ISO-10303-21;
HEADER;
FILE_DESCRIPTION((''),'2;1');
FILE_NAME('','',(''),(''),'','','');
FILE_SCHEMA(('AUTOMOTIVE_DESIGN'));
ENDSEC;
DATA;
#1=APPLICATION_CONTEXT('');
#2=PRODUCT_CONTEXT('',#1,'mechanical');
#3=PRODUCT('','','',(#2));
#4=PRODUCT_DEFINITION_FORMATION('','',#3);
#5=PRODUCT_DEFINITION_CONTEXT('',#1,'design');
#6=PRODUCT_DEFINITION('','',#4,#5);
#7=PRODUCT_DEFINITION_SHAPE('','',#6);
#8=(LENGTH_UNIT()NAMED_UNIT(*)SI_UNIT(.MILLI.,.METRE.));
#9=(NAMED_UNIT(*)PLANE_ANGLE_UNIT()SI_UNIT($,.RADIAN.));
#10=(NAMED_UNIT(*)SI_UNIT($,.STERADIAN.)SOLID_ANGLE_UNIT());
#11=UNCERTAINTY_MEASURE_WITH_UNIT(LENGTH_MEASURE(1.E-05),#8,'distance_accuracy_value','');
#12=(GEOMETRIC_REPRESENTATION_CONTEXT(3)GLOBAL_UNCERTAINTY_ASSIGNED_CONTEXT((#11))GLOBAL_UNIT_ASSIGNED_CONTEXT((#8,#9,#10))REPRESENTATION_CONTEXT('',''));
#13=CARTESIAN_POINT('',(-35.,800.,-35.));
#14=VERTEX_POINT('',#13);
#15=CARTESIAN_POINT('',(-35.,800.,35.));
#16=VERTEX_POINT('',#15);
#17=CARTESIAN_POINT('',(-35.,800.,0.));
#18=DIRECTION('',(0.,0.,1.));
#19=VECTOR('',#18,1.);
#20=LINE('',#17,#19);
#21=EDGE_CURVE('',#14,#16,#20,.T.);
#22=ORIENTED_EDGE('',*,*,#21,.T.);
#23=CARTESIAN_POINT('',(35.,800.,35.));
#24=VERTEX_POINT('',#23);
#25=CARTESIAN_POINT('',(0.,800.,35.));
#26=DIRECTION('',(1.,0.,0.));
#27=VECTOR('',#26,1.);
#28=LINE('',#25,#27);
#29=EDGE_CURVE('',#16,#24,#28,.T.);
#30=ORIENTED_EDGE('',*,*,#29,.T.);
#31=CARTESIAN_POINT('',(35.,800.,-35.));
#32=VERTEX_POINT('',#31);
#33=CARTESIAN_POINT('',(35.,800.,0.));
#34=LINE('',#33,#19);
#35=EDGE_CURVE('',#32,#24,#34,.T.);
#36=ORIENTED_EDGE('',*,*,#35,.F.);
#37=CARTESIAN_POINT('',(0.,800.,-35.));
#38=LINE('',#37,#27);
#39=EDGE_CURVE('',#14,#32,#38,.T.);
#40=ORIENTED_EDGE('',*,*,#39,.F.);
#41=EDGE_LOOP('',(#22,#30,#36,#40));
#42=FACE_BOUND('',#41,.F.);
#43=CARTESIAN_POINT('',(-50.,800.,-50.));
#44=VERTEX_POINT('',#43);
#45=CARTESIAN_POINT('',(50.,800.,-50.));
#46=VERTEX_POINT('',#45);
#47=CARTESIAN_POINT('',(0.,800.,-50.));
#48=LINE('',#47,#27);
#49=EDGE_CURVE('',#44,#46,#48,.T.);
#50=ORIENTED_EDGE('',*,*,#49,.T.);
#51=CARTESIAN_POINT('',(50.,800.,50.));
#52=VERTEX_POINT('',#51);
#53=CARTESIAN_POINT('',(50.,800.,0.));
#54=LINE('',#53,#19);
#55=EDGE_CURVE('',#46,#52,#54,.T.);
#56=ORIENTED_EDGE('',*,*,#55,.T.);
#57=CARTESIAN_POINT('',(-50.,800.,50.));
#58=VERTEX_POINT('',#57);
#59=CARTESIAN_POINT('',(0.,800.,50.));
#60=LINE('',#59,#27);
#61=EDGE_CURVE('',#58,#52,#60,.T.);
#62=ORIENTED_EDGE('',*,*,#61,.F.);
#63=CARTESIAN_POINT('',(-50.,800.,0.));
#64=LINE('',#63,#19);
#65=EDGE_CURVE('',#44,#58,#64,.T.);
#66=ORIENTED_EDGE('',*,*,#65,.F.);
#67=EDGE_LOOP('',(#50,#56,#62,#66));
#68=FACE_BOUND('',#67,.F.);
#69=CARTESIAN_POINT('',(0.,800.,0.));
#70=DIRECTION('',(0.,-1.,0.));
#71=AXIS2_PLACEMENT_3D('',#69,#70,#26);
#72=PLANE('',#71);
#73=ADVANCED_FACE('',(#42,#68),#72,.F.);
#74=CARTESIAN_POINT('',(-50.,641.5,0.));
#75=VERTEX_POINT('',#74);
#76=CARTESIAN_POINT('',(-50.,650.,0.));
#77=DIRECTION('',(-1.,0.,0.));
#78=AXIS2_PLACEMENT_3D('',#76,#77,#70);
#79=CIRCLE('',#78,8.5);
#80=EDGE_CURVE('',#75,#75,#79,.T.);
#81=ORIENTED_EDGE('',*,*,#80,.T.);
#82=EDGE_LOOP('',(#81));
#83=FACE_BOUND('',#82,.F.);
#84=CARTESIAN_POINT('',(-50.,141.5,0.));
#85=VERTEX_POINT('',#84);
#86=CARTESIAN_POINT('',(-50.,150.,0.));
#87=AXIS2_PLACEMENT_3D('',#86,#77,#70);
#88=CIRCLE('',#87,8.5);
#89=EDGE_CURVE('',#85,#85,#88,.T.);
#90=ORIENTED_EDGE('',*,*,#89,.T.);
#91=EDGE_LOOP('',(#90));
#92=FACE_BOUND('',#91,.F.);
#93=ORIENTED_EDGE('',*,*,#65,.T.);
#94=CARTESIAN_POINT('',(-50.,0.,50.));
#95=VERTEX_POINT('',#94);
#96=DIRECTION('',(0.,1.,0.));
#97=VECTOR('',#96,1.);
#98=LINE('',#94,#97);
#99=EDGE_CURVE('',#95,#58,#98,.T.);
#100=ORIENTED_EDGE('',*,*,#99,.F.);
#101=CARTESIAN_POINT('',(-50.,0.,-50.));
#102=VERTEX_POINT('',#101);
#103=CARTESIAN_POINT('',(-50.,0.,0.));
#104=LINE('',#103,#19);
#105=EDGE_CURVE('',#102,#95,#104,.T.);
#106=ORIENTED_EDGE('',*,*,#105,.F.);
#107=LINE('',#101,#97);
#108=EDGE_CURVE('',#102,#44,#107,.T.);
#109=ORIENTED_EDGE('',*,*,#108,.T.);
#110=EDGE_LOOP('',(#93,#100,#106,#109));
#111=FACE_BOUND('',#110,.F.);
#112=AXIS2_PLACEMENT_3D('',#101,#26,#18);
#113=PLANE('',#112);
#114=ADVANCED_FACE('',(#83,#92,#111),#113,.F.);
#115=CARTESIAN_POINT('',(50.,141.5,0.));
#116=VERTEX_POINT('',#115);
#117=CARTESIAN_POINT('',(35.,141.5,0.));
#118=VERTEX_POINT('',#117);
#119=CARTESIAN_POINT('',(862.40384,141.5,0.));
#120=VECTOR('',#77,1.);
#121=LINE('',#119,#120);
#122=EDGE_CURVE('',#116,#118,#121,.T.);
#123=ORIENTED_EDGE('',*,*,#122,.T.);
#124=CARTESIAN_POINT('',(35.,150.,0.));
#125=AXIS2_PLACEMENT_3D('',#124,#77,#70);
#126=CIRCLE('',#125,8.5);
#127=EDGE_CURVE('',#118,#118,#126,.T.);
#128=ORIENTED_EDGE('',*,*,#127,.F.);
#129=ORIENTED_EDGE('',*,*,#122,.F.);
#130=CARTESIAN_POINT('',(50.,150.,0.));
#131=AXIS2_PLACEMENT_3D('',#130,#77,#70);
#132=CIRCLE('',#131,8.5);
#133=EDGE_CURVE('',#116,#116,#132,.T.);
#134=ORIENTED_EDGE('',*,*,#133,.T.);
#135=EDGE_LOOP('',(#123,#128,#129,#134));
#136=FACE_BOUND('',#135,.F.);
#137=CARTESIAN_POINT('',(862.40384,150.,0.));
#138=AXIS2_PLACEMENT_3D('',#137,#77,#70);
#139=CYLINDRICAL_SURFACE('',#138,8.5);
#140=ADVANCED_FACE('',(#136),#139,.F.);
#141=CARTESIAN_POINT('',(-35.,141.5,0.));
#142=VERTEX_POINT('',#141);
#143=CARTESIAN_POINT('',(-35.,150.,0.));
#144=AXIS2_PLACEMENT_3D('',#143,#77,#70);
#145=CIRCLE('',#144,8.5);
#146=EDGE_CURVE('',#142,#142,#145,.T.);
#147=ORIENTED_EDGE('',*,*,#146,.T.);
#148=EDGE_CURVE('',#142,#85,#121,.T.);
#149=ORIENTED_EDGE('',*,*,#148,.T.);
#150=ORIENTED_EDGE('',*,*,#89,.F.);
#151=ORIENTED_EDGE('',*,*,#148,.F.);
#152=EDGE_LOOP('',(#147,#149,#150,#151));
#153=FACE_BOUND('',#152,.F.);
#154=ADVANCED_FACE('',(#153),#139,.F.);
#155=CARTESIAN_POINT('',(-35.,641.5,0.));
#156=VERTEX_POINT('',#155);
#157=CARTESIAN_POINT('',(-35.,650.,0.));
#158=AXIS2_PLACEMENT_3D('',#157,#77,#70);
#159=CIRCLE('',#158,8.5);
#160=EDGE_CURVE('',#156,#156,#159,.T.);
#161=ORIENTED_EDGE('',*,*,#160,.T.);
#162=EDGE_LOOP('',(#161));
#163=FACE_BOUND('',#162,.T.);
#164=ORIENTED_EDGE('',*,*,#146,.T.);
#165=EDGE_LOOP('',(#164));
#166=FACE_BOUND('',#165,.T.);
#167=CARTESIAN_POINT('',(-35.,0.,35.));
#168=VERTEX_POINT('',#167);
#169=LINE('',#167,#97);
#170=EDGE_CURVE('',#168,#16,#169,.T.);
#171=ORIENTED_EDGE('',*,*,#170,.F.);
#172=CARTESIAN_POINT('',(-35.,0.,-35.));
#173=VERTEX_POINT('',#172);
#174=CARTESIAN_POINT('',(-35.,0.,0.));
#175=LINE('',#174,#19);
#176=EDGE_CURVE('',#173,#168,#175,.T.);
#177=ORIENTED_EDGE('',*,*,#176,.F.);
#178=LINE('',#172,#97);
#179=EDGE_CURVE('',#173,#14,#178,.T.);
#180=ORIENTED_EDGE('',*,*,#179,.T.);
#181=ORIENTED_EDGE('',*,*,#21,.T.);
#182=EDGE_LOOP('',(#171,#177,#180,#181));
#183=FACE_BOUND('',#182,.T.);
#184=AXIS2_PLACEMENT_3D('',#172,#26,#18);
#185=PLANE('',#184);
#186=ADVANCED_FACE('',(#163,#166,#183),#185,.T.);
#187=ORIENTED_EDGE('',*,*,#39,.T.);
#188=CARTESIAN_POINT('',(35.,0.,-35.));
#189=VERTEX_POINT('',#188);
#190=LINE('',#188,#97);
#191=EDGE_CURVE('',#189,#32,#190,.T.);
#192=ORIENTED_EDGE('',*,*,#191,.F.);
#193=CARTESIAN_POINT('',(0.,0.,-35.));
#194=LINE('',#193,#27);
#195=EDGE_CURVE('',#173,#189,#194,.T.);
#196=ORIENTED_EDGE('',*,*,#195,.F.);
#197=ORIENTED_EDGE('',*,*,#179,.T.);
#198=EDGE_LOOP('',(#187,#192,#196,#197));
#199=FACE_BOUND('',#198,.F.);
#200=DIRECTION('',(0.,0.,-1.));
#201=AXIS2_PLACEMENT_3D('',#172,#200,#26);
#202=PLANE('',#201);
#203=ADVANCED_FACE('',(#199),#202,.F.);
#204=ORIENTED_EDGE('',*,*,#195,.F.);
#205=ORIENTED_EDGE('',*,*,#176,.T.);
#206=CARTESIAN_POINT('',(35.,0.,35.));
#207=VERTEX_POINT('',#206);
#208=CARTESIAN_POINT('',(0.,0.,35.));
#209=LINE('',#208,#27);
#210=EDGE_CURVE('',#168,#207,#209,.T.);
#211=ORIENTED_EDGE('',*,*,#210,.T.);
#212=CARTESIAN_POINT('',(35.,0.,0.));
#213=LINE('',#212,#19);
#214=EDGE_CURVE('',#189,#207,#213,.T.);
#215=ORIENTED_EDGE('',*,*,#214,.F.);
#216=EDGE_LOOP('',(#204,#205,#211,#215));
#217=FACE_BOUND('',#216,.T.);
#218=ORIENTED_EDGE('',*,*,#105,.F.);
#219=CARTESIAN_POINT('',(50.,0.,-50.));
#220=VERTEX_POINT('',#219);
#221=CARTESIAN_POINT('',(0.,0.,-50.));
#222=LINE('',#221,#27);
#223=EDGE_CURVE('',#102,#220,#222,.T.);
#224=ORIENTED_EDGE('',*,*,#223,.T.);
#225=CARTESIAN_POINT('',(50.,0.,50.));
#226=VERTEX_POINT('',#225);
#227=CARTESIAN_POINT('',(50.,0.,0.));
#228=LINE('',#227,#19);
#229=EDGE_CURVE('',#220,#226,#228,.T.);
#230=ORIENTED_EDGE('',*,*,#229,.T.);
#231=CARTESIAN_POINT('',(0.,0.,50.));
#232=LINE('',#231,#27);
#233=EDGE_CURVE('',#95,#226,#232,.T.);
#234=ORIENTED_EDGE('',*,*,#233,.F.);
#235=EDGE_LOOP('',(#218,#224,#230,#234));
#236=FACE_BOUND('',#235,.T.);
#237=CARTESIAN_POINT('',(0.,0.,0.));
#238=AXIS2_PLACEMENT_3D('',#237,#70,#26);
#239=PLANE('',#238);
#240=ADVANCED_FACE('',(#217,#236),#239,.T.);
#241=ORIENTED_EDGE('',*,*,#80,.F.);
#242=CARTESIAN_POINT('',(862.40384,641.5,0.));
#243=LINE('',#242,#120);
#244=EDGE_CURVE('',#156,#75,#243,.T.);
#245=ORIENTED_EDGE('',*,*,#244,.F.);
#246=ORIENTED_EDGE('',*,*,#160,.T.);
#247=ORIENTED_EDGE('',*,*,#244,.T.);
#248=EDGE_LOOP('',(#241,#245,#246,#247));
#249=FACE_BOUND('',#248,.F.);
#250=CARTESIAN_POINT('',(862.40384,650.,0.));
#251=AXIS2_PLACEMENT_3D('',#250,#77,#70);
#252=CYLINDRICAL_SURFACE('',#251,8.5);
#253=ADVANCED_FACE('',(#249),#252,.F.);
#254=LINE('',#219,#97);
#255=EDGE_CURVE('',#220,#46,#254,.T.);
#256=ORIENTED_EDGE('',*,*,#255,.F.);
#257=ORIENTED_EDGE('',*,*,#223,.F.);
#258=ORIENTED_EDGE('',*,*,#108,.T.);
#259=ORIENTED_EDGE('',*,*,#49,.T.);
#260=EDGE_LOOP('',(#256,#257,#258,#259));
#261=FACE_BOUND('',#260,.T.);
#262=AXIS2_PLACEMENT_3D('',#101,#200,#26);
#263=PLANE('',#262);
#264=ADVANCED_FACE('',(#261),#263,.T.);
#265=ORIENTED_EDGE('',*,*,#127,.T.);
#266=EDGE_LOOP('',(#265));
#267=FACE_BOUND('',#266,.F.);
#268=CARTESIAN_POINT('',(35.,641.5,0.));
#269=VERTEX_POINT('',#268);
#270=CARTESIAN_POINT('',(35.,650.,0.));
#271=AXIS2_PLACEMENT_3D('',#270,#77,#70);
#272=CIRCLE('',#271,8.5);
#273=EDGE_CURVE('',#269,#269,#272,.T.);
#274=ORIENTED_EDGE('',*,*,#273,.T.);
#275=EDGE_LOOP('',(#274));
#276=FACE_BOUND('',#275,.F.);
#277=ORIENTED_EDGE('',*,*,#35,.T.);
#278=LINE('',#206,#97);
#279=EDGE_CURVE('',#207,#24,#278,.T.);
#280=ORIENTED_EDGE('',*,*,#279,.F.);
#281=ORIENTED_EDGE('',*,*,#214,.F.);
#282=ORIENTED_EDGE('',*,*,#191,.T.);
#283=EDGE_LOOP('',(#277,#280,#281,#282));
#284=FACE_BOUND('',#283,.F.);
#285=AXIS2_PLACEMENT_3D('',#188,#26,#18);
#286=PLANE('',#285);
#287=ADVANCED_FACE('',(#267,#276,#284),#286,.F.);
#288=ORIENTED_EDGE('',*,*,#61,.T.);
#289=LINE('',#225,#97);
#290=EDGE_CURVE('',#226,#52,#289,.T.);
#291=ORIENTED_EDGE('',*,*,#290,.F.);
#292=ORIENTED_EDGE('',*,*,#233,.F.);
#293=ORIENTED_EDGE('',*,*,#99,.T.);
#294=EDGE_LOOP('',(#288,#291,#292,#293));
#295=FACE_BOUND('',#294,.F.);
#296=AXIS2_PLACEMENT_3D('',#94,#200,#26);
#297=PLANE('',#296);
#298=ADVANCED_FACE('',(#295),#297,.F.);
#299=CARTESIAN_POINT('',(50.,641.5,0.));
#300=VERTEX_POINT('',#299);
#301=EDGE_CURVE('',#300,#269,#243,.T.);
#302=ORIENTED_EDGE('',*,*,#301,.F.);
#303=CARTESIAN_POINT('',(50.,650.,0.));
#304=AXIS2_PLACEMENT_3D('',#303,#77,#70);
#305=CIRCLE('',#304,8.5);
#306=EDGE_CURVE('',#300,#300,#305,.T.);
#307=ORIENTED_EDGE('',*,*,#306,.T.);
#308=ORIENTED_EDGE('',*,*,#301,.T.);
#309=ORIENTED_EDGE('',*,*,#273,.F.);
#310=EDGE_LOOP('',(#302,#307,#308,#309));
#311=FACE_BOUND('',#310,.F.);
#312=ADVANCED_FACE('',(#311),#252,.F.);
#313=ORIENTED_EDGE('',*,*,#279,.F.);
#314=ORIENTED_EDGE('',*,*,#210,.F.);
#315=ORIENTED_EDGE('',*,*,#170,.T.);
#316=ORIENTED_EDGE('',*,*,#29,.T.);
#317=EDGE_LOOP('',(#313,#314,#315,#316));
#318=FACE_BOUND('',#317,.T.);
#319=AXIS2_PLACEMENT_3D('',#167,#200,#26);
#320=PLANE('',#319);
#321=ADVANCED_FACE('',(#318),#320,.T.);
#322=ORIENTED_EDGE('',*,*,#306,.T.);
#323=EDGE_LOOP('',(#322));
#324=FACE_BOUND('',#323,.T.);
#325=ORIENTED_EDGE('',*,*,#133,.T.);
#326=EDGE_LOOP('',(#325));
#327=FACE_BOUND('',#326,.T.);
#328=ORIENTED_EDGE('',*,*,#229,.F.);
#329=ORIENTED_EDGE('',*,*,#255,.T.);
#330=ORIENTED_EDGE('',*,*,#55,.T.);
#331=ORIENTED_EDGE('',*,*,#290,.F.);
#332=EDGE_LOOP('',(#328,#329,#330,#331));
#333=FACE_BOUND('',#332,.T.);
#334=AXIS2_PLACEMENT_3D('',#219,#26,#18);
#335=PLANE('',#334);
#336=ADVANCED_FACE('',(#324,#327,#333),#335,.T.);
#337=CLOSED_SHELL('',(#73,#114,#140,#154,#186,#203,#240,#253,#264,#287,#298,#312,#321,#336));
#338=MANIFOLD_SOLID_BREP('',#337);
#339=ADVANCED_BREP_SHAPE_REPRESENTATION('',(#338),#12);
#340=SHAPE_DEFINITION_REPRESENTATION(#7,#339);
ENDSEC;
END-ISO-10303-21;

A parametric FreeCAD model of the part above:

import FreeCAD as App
import Part
import Sketcher

V = App.Vector


def add_polygon(sketch, points):
    """Adds a closed chain of lines whose ends are joined by coincident constraints."""
    first, n = sketch.GeometryCount, len(points)
    for a, b in zip(points, points[1:] + points[:1]):
        sketch.addGeometry(Part.LineSegment(App.Vector(*a, 0), App.Vector(*b, 0)), False)
    for i in range(n):
        sketch.addConstraint(Sketcher.Constraint("Coincident", first + i, 2, first + (i + 1) % n, 1))

doc = App.newDocument("Part")
params = doc.addObject("Spreadsheet::Sheet", "Params")
for row, (alias, value) in enumerate([
    ("sketch1_width", "100 mm"),
    ("sketch1_width2", "70 mm"),
    ("pad1_length", "800 mm"),
    ("sketch2_diameter", "17 mm"),
    ("hole_diameter", "17 mm"),
], start=1):
    params.set(f"A{row}", alias)
    params.set(f"B{row}", "=" + value)
    params.setAlias(f"B{row}", alias)

body = doc.addObject("PartDesign::Body", "Body")

# Sketch on XZ plane
sketch1 = doc.addObject("Sketcher::SketchObject", "Sketch")
body.addObject(sketch1)
sketch1.AttachmentSupport = (doc.XZ_Plane, [""])
sketch1.MapMode = "FlatFace"
add_polygon(sketch1, [(-50, 50), (-50, -50), (50, -50), (50, 50)])  # lines 0-3
add_polygon(sketch1, [(35, -35), (-35, -35), (-35, 35), (35, 35)])  # lines 4-7
sketch1.addConstraint([
    Sketcher.Constraint("Vertical", 0),
    Sketcher.Constraint("Horizontal", 1),
    Sketcher.Constraint("Vertical", 2),
    Sketcher.Constraint("Horizontal", 3),
    Sketcher.Constraint("Horizontal", 4),
    Sketcher.Constraint("Vertical", 5),
    Sketcher.Constraint("Horizontal", 6),
    Sketcher.Constraint("Vertical", 7),
    Sketcher.Constraint("Symmetric", 0, 2, 2, 2, -1, 1),
    Sketcher.Constraint("Symmetric", 4, 2, 6, 2, -1, 1),
    Sketcher.Constraint("Equal", 3, 0),
    Sketcher.Constraint("Equal", 6, 5),
    Sketcher.Constraint("DistanceX", 1, 1, 1, 2, 100.0),
    Sketcher.Constraint("DistanceX", 4, 2, 4, 1, 70.0),
])
sketch1.setExpression("Constraints[20]", "Params.sketch1_width")
sketch1.setExpression("Constraints[21]", "Params.sketch1_width2")
pad1 = doc.addObject("PartDesign::Pad", "Pad")
body.addObject(pad1)
pad1.Profile = sketch1
pad1.setExpression("Length", "Params.pad1_length")
pad1.Reversed = True

# Sketch on YZ plane
sketch2 = doc.addObject("Sketcher::SketchObject", "Sketch001")
body.addObject(sketch2)
sketch2.AttachmentSupport = (doc.YZ_Plane, [""])
sketch2.MapMode = "FlatFace"
sketch2.AttachmentOffset = App.Placement(V(0, 0, 50), App.Rotation())
sketch2.addGeometry([
    Part.Circle(V(150, 0, 0), V(0, 0, 1), 8.5),
    Part.Circle(V(650, 0, 0), V(0, 0, 1), 8.5),
], False)
sketch2.addConstraint([
    Sketcher.Constraint("Equal", 0, 1),
    Sketcher.Constraint("PointOnObject", 0, 3, -1),
    Sketcher.Constraint("PointOnObject", 1, 3, -1),
    Sketcher.Constraint("Diameter", 0, 17.0),
    Sketcher.Constraint("DistanceX", -1, 1, 0, 3, 150.0),
    Sketcher.Constraint("DistanceX", -1, 1, 1, 3, 650.0),
])
sketch2.setExpression("Constraints[3]", "Params.sketch2_diameter")
doc.recompute()
hole = doc.addObject("PartDesign::Hole", "Hole")
body.addObject(hole)
hole.Profile = sketch2
hole.ThreadType = "None"
hole.setExpression("Diameter", "Params.hole_diameter")
hole.DepthType = "ThroughAll"

doc.recompute()
